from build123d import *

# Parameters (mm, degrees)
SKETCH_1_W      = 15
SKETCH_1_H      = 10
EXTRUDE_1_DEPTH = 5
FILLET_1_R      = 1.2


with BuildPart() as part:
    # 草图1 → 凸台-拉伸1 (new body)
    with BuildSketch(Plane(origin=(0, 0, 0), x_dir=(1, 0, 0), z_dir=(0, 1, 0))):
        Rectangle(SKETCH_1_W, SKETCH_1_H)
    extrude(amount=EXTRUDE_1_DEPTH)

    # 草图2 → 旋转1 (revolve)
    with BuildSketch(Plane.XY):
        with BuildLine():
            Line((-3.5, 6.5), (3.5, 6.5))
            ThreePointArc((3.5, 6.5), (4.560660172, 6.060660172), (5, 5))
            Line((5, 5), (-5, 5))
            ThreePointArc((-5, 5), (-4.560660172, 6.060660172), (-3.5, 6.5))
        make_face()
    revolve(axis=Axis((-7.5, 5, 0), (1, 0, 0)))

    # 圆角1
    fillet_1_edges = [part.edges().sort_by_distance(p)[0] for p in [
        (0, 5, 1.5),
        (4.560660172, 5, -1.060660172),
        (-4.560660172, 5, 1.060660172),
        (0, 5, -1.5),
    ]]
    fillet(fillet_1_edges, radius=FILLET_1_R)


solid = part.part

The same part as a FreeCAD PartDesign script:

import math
import FreeCAD as App
import Part
import Sketcher
from FreeCAD import Vector
Q = App.Units.Quantity


def edges_at(feature, points):
    """Names of the edges that pass closest to the given points."""
    edges = feature.Shape.Edges
    near = lambda p: min(range(len(edges)), key=lambda i: edges[i].distToShape(Part.Vertex(*p))[0])
    return sorted({f"Edge{near(p) + 1}" for p in points})


def add_polygon(sketch, points):
    """Adds a closed chain of lines whose ends are joined by coincident constraints."""
    first, n = sketch.GeometryCount, len(points)
    for a, b in zip(points, points[1:] + points[:1]):
        sketch.addGeometry(Part.LineSegment(App.Vector(*a, 0), App.Vector(*b, 0)), False)
    for i in range(n):
        sketch.addConstraint(Sketcher.Constraint("Coincident", first + i, 2, first + (i + 1) % n, 1))

doc = App.newDocument("Part")
params = doc.addObject("Spreadsheet::Sheet", "Params")
for row, (alias, value) in enumerate([
    ("sketch1_width", "15 mm"),
    ("sketch1_height", "10 mm"),
    ("pad1_length", "5 mm"),
    ("sketch2_radius", "1.5 mm"),
    ("sketch2_width", "7 mm"),
    ("revolution_angle", "360 deg"),
    ("fillet_radius", "1.2 mm"),
], start=1):
    params.set(f"A{row}", alias)
    params.set(f"B{row}", "=" + value)
    params.setAlias(f"B{row}", alias)

body = doc.addObject("PartDesign::Body", "Body")

sketch1 = doc.addObject("Sketcher::SketchObject", "Sketch")
body.addObject(sketch1)
sketch1.AttachmentSupport = (doc.XZ_Plane, [""])
sketch1.MapMode = "FlatFace"
add_polygon(sketch1, [(-8, -5), (-8, 5), (8, 5), (8, -5)])
sketch1.addConstraint(Sketcher.Constraint("Vertical", 0))
sketch1.addConstraint(Sketcher.Constraint("Horizontal", 1))
sketch1.addConstraint(Sketcher.Constraint("Vertical", 2))
sketch1.addConstraint(Sketcher.Constraint("Horizontal", 3))
sketch1.addConstraint(Sketcher.Constraint("Symmetric", 0, 2, 2, 2, -1, 1))
sketch1.addConstraint(Sketcher.Constraint("DistanceX", 1, 1, 1, 2, Q("15 mm")))
sketch1.addConstraint(Sketcher.Constraint("DistanceY", 0, 1, 0, 2, Q("10 mm")))
sketch1.setExpression("Constraints[9]", "Params.sketch1_width")
sketch1.setExpression("Constraints[10]", "Params.sketch1_height")
pad1 = doc.addObject("PartDesign::Pad", "Pad")
body.addObject(pad1)
pad1.Profile = sketch1
pad1.setExpression("Length", "Params.pad1_length")
pad1.Reversed = True

sketch2 = doc.addObject("Sketcher::SketchObject", "Sketch001")
body.addObject(sketch2)
sketch2.AttachmentSupport = (doc.XY_Plane, [""])
sketch2.MapMode = "FlatFace"
sketch2.addGeometry(Part.LineSegment(Vector(3.5, 6.5, 0), Vector(-3.5, 6.5, 0)), False)
sketch2.addGeometry(Part.ArcOfCircle(Part.Circle(Vector(-3.5, 5, 0), Vector(0, 0, 1), 1.5), math.radians(90), math.radians(180)), False)
sketch2.addGeometry(Part.LineSegment(Vector(-5, 5, 0), Vector(5, 5, 0)), False)
sketch2.addGeometry(Part.ArcOfCircle(Part.Circle(Vector(3.5, 5, 0), Vector(0, 0, 1), 1.5), math.radians(0), math.radians(90)), False)
sketch2.addGeometry(Part.LineSegment(Vector(-5, 5, 0), Vector(5, 5, 0)), True)
sketch2.addConstraint(Sketcher.Constraint("Tangent", 0, 2, 1, 1))
sketch2.addConstraint(Sketcher.Constraint("Coincident", 1, 2, 2, 1))
sketch2.addConstraint(Sketcher.Constraint("Coincident", 2, 2, 3, 1))
sketch2.addConstraint(Sketcher.Constraint("Tangent", 3, 2, 0, 1))
sketch2.addConstraint(Sketcher.Constraint("Horizontal", 0))
sketch2.addConstraint(Sketcher.Constraint("Horizontal", 2))
sketch2.addConstraint(Sketcher.Constraint("Horizontal", 4))
sketch2.addConstraint(Sketcher.Constraint("Coincident", 4, 1, 1, 2))
sketch2.addConstraint(Sketcher.Constraint("Equal", 1, 3))
sketch2.addConstraint(Sketcher.Constraint("Horizontal", 3, 3, 1, 2))
sketch2.addConstraint(Sketcher.Constraint("Equal", 2, 4))
sketch2.addConstraint(Sketcher.Constraint("Radius", 1, Q("1.5 mm")))
sketch2.addConstraint(Sketcher.Constraint("DistanceX", 0, 2, 0, 1, Q("7 mm")))
sketch2.addConstraint(Sketcher.Constraint("DistanceY", -1, 1, 1, 3, Q("5 mm")))
sketch2.addConstraint(Sketcher.Constraint("DistanceX", 1, 2, -1, 1, Q("5 mm")))
sketch2.setExpression("Constraints[11]", "Params.sketch2_radius")
sketch2.setExpression("Constraints[12]", "Params.sketch2_width")
revolution = doc.addObject("PartDesign::Revolution", "Revolution")
body.addObject(revolution)
revolution.Profile = sketch2
revolution.ReferenceAxis = (sketch2, ["Axis0"])
revolution.setExpression("Angle", "Params.revolution_angle")
doc.recompute()

fillet = doc.addObject("PartDesign::Fillet", "Fillet")
body.addObject(fillet)
fillet.Base = (revolution, edges_at(revolution, [
    (0, 5, 1.5),
    (4.561, 5, -1.061),
    (-4.561, 5, 1.061),
    (0, 5, -1.5),
]))
fillet.setExpression("Radius", "Params.fillet_radius")

doc.recompute()
